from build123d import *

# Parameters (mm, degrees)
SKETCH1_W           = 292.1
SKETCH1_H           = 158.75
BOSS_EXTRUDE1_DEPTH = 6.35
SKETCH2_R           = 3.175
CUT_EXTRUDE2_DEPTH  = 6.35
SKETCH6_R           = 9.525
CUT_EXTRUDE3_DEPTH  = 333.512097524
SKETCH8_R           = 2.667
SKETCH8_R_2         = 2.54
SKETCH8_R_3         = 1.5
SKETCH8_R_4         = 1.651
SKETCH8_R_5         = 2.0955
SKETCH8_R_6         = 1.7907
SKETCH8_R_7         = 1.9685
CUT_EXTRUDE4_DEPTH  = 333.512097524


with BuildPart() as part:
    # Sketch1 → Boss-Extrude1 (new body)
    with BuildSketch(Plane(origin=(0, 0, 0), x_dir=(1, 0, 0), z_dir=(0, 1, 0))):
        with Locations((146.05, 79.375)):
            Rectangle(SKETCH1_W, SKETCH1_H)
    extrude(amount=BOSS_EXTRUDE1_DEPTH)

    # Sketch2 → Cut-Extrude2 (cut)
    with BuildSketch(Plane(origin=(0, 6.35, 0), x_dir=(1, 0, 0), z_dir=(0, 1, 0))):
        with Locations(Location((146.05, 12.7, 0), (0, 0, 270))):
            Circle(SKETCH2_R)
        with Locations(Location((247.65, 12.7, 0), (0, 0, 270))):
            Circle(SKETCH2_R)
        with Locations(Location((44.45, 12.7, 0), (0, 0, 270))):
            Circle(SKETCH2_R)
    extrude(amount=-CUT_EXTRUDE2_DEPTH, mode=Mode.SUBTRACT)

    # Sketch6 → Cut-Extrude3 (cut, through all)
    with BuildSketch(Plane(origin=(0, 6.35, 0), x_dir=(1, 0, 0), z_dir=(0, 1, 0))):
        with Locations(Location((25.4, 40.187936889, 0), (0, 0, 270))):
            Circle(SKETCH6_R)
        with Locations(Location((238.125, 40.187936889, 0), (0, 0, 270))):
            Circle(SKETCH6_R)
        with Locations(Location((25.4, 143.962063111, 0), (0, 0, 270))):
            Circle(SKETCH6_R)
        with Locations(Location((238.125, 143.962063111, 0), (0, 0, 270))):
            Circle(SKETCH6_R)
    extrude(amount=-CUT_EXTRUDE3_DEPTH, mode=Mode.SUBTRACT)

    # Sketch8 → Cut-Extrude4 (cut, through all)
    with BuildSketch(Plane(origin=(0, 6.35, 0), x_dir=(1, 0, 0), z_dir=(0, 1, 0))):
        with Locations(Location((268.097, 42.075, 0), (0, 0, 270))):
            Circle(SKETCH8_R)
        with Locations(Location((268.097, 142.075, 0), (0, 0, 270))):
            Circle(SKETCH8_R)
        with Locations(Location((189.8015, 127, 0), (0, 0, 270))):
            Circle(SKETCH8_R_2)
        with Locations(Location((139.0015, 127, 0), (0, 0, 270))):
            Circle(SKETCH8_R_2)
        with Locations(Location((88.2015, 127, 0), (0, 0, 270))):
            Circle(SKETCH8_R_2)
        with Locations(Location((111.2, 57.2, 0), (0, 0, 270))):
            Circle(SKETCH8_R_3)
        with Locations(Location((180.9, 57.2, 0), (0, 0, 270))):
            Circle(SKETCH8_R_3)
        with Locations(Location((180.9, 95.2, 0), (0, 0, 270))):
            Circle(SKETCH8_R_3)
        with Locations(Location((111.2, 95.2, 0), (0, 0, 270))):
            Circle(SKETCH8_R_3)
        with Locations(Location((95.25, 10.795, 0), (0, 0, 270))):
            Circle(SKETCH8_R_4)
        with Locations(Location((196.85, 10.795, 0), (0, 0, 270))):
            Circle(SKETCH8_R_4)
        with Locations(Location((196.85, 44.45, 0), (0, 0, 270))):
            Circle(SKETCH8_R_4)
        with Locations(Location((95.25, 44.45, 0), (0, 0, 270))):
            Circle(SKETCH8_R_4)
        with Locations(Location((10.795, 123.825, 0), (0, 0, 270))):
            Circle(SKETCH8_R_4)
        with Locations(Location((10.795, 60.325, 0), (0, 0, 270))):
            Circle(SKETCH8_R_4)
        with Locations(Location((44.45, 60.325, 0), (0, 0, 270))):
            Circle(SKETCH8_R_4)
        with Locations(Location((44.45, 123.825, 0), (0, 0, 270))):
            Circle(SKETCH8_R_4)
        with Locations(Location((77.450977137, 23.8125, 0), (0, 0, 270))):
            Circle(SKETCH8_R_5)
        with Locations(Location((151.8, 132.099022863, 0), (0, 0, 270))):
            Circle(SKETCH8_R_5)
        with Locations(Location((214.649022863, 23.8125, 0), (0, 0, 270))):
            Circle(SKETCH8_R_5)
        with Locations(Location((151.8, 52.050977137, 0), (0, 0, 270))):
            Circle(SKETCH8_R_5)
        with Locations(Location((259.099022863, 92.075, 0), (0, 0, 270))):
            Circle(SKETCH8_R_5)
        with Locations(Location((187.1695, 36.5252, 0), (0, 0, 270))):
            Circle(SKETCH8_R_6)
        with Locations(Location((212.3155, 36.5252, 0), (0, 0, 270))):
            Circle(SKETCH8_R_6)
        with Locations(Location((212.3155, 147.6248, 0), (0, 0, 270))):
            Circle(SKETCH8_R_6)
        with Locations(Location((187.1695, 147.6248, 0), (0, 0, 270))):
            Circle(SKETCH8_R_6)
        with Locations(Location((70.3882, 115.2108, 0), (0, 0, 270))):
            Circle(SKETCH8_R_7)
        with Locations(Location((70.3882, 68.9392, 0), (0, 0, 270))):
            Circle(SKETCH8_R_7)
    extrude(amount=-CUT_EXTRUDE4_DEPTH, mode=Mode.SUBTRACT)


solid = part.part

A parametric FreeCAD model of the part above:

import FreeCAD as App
import Part
import Sketcher
from FreeCAD import Vector
Q = App.Units.Quantity


def add_polygon(sketch, points):
    """Adds a closed chain of lines whose ends are joined by coincident constraints."""
    first, n = sketch.GeometryCount, len(points)
    for a, b in zip(points, points[1:] + points[:1]):
        sketch.addGeometry(Part.LineSegment(App.Vector(*a, 0), App.Vector(*b, 0)), False)
    for i in range(n):
        sketch.addConstraint(Sketcher.Constraint("Coincident", first + i, 2, first + (i + 1) % n, 1))

doc = App.newDocument("Part")
params = doc.addObject("Spreadsheet::Sheet", "Params")
for row, (alias, value) in enumerate([
    ("sketch1_width", "11.5 in"),
    ("sketch1_height", "6.25 in"),
    ("pad1_length", "0.25 in"),
    ("sketch2_diameter", "0.25 in"),
    ("pocket1_length", "0.25 in"),
    ("sketch3_diameter", "0.75 in"),
    ("sketch4_diameter", "0.2 in"),
    ("sketch4_diameter2", "0.21 in"),
    ("sketch4_diameter3", "0.13 in"),
    ("sketch4_diameter4", "0.165 in"),
    ("sketch4_diameter5", "0.141 in"),
], start=1):
    params.set(f"A{row}", alias)
    params.set(f"B{row}", "=" + value)
    params.setAlias(f"B{row}", alias)

body = doc.addObject("PartDesign::Body", "Body")

# Sketch on XZ plane
sketch1 = doc.addObject("Sketcher::SketchObject", "Sketch")
body.addObject(sketch1)
sketch1.AttachmentSupport = (doc.XZ_Plane, [""])
sketch1.MapMode = "FlatFace"
add_polygon(sketch1, [(0, -159), (0, 0), (292, 0), (292, -159)])  # lines 0-3
sketch1.addConstraint([
    Sketcher.Constraint("Vertical", 0),
    Sketcher.Constraint("Horizontal", 1),
    Sketcher.Constraint("Vertical", 2),
    Sketcher.Constraint("Horizontal", 3),
    Sketcher.Constraint("Coincident", 0, 2, -1, 1),
    Sketcher.Constraint("DistanceX", 1, 1, 1, 2, Q("11.5 in")),
    Sketcher.Constraint("DistanceY", 0, 1, 0, 2, Q("6.25 in")),
])
sketch1.setExpression("Constraints[9]", "Params.sketch1_width")
sketch1.setExpression("Constraints[10]", "Params.sketch1_height")
pad1 = doc.addObject("PartDesign::Pad", "Pad")
body.addObject(pad1)
pad1.Profile = sketch1
pad1.setExpression("Length", "Params.pad1_length")
pad1.Reversed = True

# Sketch on XZ plane
sketch2 = doc.addObject("Sketcher::SketchObject", "Sketch001")
body.addObject(sketch2)
sketch2.AttachmentSupport = (doc.XZ_Plane, [""])
sketch2.MapMode = "FlatFace"
sketch2.AttachmentOffset = App.Placement(Vector(0, 0, -0.25 * 25.4), App.Rotation())
sketch2.addGeometry([
    Part.Circle(Vector(146.1, -12.7, 0), Vector(0, 0, 1), 3.2),
    Part.Circle(Vector(247.7, -12.7, 0), Vector(0, 0, 1), 3.2),
    Part.Circle(Vector(44.5, -12.7, 0), Vector(0, 0, 1), 3.2),
], False)
sketch2.addConstraint([
    Sketcher.Constraint("Equal", 0, 1),
    Sketcher.Constraint("Equal", 1, 2),
    Sketcher.Constraint("Horizontal", 0, 3, 1, 3),
    Sketcher.Constraint("Horizontal", 1, 3, 2, 3),
    Sketcher.Constraint("Diameter", 0, Q("0.25 in")),
    Sketcher.Constraint("DistanceX", 0, 3, 1, 3, Q("4 in")),
    Sketcher.Constraint("DistanceX", 2, 3, 0, 3, Q("4 in")),
    Sketcher.Constraint("DistanceY", 0, 3, -1, 1, Q("0.5 in")),
    Sketcher.Constraint("DistanceX", -1, 1, 0, 3, Q("5.75 in")),
])
sketch2.setExpression("Constraints[4]", "Params.sketch2_diameter")
pocket1 = doc.addObject("PartDesign::Pocket", "Pocket")
body.addObject(pocket1)
pocket1.Profile = sketch2
pocket1.setExpression("Length", "Params.pocket1_length")
pocket1.Reversed = True

# Sketch on XZ plane
sketch3 = doc.addObject("Sketcher::SketchObject", "Sketch002")
body.addObject(sketch3)
sketch3.AttachmentSupport = (doc.XZ_Plane, [""])
sketch3.MapMode = "FlatFace"
sketch3.AttachmentOffset = App.Placement(Vector(0, 0, -0.25 * 25.4), App.Rotation())
sketch3.addGeometry([
    Part.Circle(Vector(25, -40, 0), Vector(0, 0, 1), 10),
    Part.Circle(Vector(238, -40, 0), Vector(0, 0, 1), 10),
    Part.Circle(Vector(25, -144, 0), Vector(0, 0, 1), 10),
    Part.Circle(Vector(238, -144, 0), Vector(0, 0, 1), 10),
], False)
sketch3.addConstraint([
    Sketcher.Constraint("Equal", 0, 1),
    Sketcher.Constraint("Equal", 1, 2),
    Sketcher.Constraint("Equal", 2, 3),
    Sketcher.Constraint("Horizontal", 0, 3, 1, 3),
    Sketcher.Constraint("Horizontal", 2, 3, 3, 3),
    Sketcher.Constraint("Vertical", 0, 3, 2, 3),
    Sketcher.Constraint("Vertical", 1, 3, 3, 3),
    Sketcher.Constraint("Diameter", 0, Q("0.75 in")),
    Sketcher.Constraint("DistanceX", -1, 1, 0, 3, Q("1 in")),
    Sketcher.Constraint("DistanceX", -1, 1, 1, 3, Q("9.375 in")),
    Sketcher.Constraint("DistanceY", 0, 3, -1, 1, Q("40.187937 mm")),
    Sketcher.Constraint("DistanceY", 2, 3, -1, 1, Q("143.962063 mm")),
])
sketch3.setExpression("Constraints[7]", "Params.sketch3_diameter")
pocket2 = doc.addObject("PartDesign::Pocket", "Pocket001")
body.addObject(pocket2)
pocket2.Profile = sketch3
pocket2.Type = "ThroughAll"
pocket2.Reversed = True

# Sketch on XZ plane
sketch4 = doc.addObject("Sketcher::SketchObject", "Sketch003")
body.addObject(sketch4)
sketch4.AttachmentSupport = (doc.XZ_Plane, [""])
sketch4.MapMode = "FlatFace"
sketch4.AttachmentOffset = App.Placement(Vector(0, 0, -0.25 * 25.4), App.Rotation())
sketch4.addGeometry([
    Part.Circle(Vector(268.1, -42.1, 0), Vector(0, 0, 1), 2.7),  # 0
    Part.Circle(Vector(268.1, -142.1, 0), Vector(0, 0, 1), 2.7),  # 1
    Part.Circle(Vector(189.8, -127, 0), Vector(0, 0, 1), 2.5),  # 2
    Part.Circle(Vector(139, -127, 0), Vector(0, 0, 1), 2.5),  # 3
    Part.Circle(Vector(88.2, -127, 0), Vector(0, 0, 1), 2.5),  # 4
    Part.Circle(Vector(111.2, -57.2, 0), Vector(0, 0, 1), 1.5),  # 5
    Part.Circle(Vector(180.9, -57.2, 0), Vector(0, 0, 1), 1.5),  # 6
    Part.Circle(Vector(180.9, -95.2, 0), Vector(0, 0, 1), 1.5),  # 7
    Part.Circle(Vector(111.2, -95.2, 0), Vector(0, 0, 1), 1.5),  # 8
    Part.Circle(Vector(95.2, -10.8, 0), Vector(0, 0, 1), 1.7),  # 9
    Part.Circle(Vector(196.8, -10.8, 0), Vector(0, 0, 1), 1.7),  # 10
    Part.Circle(Vector(196.8, -44.5, 0), Vector(0, 0, 1), 1.7),  # 11
    Part.Circle(Vector(95.2, -44.5, 0), Vector(0, 0, 1), 1.7),  # 12
    Part.Circle(Vector(10.8, -123.8, 0), Vector(0, 0, 1), 1.7),  # 13
    Part.Circle(Vector(10.8, -60.3, 0), Vector(0, 0, 1), 1.7),  # 14
    Part.Circle(Vector(44.5, -60.3, 0), Vector(0, 0, 1), 1.7),  # 15
    Part.Circle(Vector(44.5, -123.8, 0), Vector(0, 0, 1), 1.7),  # 16
    Part.Circle(Vector(77.5, -23.8, 0), Vector(0, 0, 1), 2.1),  # 17
    Part.Circle(Vector(151.8, -132.1, 0), Vector(0, 0, 1), 2.1),  # 18
    Part.Circle(Vector(214.6, -23.8, 0), Vector(0, 0, 1), 2.1),  # 19
    Part.Circle(Vector(151.8, -52.1, 0), Vector(0, 0, 1), 2.1),  # 20
    Part.Circle(Vector(259.1, -92.1, 0), Vector(0, 0, 1), 2.1),  # 21
    Part.Circle(Vector(187.2, -36.5, 0), Vector(0, 0, 1), 1.8),  # 22
    Part.Circle(Vector(212.3, -36.5, 0), Vector(0, 0, 1), 1.8),  # 23
    Part.Circle(Vector(212.3, -147.6, 0), Vector(0, 0, 1), 1.8),  # 24
    Part.Circle(Vector(187.2, -147.6, 0), Vector(0, 0, 1), 1.8),  # 25
    Part.Circle(Vector(70.4, -115.2, 0), Vector(0, 0, 1), 2),  # 26
    Part.Circle(Vector(70.4, -68.9, 0), Vector(0, 0, 1), 2),  # 27
], False)
sketch4.addConstraint([
    Sketcher.Constraint("Equal", 0, 1),
    Sketcher.Constraint("Equal", 2, 3),
    Sketcher.Constraint("Equal", 3, 4),
    Sketcher.Constraint("Equal", 5, 6),
    Sketcher.Constraint("Equal", 6, 7),
    Sketcher.Constraint("Equal", 7, 8),
    Sketcher.Constraint("Equal", 9, 10),
    Sketcher.Constraint("Equal", 10, 11),
    Sketcher.Constraint("Equal", 11, 12),
    Sketcher.Constraint("Equal", 12, 13),
    Sketcher.Constraint("Equal", 13, 14),
    Sketcher.Constraint("Equal", 14, 15),
    Sketcher.Constraint("Equal", 15, 16),
    Sketcher.Constraint("Equal", 17, 18),
    Sketcher.Constraint("Equal", 18, 19),
    Sketcher.Constraint("Equal", 19, 20),
    Sketcher.Constraint("Equal", 20, 21),
    Sketcher.Constraint("Equal", 22, 23),
    Sketcher.Constraint("Equal", 23, 24),
    Sketcher.Constraint("Equal", 24, 25),
    Sketcher.Constraint("Equal", 26, 27),
    Sketcher.Constraint("Horizontal", 2, 3, 3, 3),
    Sketcher.Constraint("Horizontal", 3, 3, 4, 3),
    Sketcher.Constraint("Horizontal", 5, 3, 6, 3),
    Sketcher.Constraint("Horizontal", 7, 3, 8, 3),
    Sketcher.Constraint("Horizontal", 9, 3, 10, 3),
    Sketcher.Constraint("Horizontal", 11, 3, 12, 3),
    Sketcher.Constraint("Horizontal", 14, 3, 15, 3),
    Sketcher.Constraint("Horizontal", 13, 3, 16, 3),
    Sketcher.Constraint("Horizontal", 17, 3, 19, 3),
    Sketcher.Constraint("Horizontal", 22, 3, 23, 3),
    Sketcher.Constraint("Horizontal", 24, 3, 25, 3),
    Sketcher.Constraint("Vertical", 0, 3, 1, 3),
    Sketcher.Constraint("Vertical", 6, 3, 7, 3),
    Sketcher.Constraint("Vertical", 5, 3, 8, 3),
    Sketcher.Constraint("Vertical", 10, 3, 11, 3),
    Sketcher.Constraint("Vertical", 9, 3, 12, 3),
    Sketcher.Constraint("Vertical", 13, 3, 14, 3),
    Sketcher.Constraint("Vertical", 15, 3, 16, 3),
    Sketcher.Constraint("Vertical", 18, 3, 20, 3),
    Sketcher.Constraint("Vertical", 23, 3, 24, 3),
    Sketcher.Constraint("Vertical", 22, 3, 25, 3),
    Sketcher.Constraint("Vertical", 26, 3, 27, 3),
    Sketcher.Constraint("Diameter", 2, Q("0.2 in")),
    Sketcher.Constraint("Diameter", 0, Q("0.21 in")),
    Sketcher.Constraint("Diameter", 9, Q("0.13 in")),
    Sketcher.Constraint("Diameter", 17, Q("0.165 in")),
    Sketcher.Constraint("Diameter", 22, Q("0.141 in")),
    Sketcher.Constraint("Diameter", 26, Q("0.155 in")),
    Sketcher.Constraint("DistanceY", 2, 3, -1, 1, Q("5 in")),
    Sketcher.Constraint("DistanceX", 3, 3, 2, 3, Q("2 in")),
    Sketcher.Constraint("DistanceX", 4, 3, 3, 3, Q("2 in")),
    Sketcher.Constraint("DistanceX", 9, 3, 10, 3, Q("4 in")),
    Sketcher.Constraint("DistanceX", 15, 3, 12, 3, Q("2 in")),
    Sketcher.Constraint("DistanceY", 13, 3, 14, 3, Q("2.5 in")),
    Sketcher.Constraint("Diameter", 5, Q("3 mm")),
    Sketcher.Constraint("DistanceX", -1, 1, 9, 3, Q("3.75 in")),
    Sketcher.Constraint("DistanceY", 11, 3, -1, 1, Q("1.75 in")),
    Sketcher.Constraint("DistanceY", 14, 3, 9, 3, Q("1.95 in")),
    Sketcher.Constraint("DistanceX", 22, 3, 23, 3, Q("0.99 in")),
    Sketcher.Constraint("DistanceX", -1, 1, 0, 3, Q("10.555 in")),
    Sketcher.Constraint("DistanceY", 9, 3, -1, 1, Q("0.425 in")),
    Sketcher.Constraint("DistanceX", -1, 1, 13, 3, Q("0.425 in")),
    Sketcher.Constraint("DistanceY", 17, 3, -1, 1, Q("0.9375 in")),
    Sketcher.Constraint("DistanceY", 21, 3, -1, 1, Q("3.625 in")),
    Sketcher.Constraint("DistanceY", 22, 3, -1, 1, Q("1.438 in")),
    Sketcher.Constraint("DistanceY", 24, 3, -1, 1, Q("5.812 in")),
    Sketcher.Constraint("DistanceX", -1, 1, 2, 3, Q("7.4725 in")),
    Sketcher.Constraint("DistanceX", 20, 3, 22, 3, Q("1.3925 in")),
    Sketcher.Constraint("DistanceY", 0, 3, -1, 1, Q("42.075 mm")),
    Sketcher.Constraint("DistanceY", 1, 3, -1, 1, Q("142.075 mm")),
    Sketcher.Constraint("DistanceX", -1, 1, 5, 3, Q("111.2 mm")),
    Sketcher.Constraint("DistanceY", 5, 3, -1, 1, Q("57.2 mm")),
    Sketcher.Constraint("DistanceX", -1, 1, 6, 3, Q("180.9 mm")),
    Sketcher.Constraint("DistanceY", 7, 3, -1, 1, Q("95.2 mm")),
    Sketcher.Constraint("DistanceX", -1, 1, 18, 3, Q("151.8 mm")),
    Sketcher.Constraint("DistanceX", -1, 1, 26, 3, Q("70.3882 mm")),
    Sketcher.Constraint("DistanceY", 26, 3, -1, 1, Q("115.2108 mm")),
    Sketcher.Constraint("DistanceY", 27, 3, -1, 1, Q("68.9392 mm")),
    Sketcher.Constraint("DistanceX", -1, 1, 17, 3, Q("77.450977 mm")),
    Sketcher.Constraint("DistanceY", 18, 3, -1, 1, Q("132.099023 mm")),
    Sketcher.Constraint("DistanceX", -1, 1, 19, 3, Q("214.649023 mm")),
    Sketcher.Constraint("DistanceY", 20, 3, -1, 1, Q("52.050977 mm")),
    Sketcher.Constraint("DistanceX", -1, 1, 21, 3, Q("259.099023 mm")),
])
sketch4.setExpression("Constraints[43]", "Params.sketch4_diameter")
sketch4.setExpression("Constraints[44]", "Params.sketch4_diameter2")
sketch4.setExpression("Constraints[45]", "Params.sketch4_diameter3")
sketch4.setExpression("Constraints[46]", "Params.sketch4_diameter4")
sketch4.setExpression("Constraints[47]", "Params.sketch4_diameter5")
pocket3 = doc.addObject("PartDesign::Pocket", "Pocket002")
body.addObject(pocket3)
pocket3.Profile = sketch4
pocket3.Type = "ThroughAll"
pocket3.Reversed = True

doc.recompute()
